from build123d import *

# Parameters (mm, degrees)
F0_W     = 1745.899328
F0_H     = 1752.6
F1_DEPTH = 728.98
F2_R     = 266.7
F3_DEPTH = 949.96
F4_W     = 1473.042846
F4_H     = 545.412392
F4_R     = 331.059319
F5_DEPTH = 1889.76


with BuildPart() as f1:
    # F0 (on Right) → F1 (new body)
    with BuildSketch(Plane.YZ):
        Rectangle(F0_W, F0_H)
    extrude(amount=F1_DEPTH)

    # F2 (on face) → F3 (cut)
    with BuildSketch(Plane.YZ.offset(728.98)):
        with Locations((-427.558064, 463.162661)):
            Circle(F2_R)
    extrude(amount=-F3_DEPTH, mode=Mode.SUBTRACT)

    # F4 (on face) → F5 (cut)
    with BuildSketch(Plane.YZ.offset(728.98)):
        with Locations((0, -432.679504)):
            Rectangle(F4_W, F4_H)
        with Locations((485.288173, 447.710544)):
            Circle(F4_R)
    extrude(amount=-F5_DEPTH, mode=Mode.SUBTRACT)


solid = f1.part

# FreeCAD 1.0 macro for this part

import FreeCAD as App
import Part
import Sketcher
Q = App.Units.Quantity

doc = App.newDocument("Part")
body = doc.addObject("PartDesign::Body", "Body")

sketch1 = body.newObject("Sketcher::SketchObject", "Sketch")
sketch1.AttachmentSupport = (doc.getObject("YZ_Plane"), [""])
sketch1.MapMode = "FlatFace"
sketch1.addGeometry([
    Part.LineSegment(App.Vector(-873, 876, 0), App.Vector(-873, -876, 0)),
    Part.LineSegment(App.Vector(-873, -876, 0), App.Vector(873, -876, 0)),
    Part.LineSegment(App.Vector(873, -876, 0), App.Vector(873, 876, 0)),
    Part.LineSegment(App.Vector(873, 876, 0), App.Vector(-873, 876, 0)),
], False)
sketch1.addConstraint([
    Sketcher.Constraint("Coincident", 0, 2, 1, 1),
    Sketcher.Constraint("Coincident", 1, 2, 2, 1),
    Sketcher.Constraint("Coincident", 2, 2, 3, 1),
    Sketcher.Constraint("Coincident", 3, 2, 0, 1),
    Sketcher.Constraint("Vertical", 0),
    Sketcher.Constraint("Horizontal", 1),
    Sketcher.Constraint("Vertical", 2),
    Sketcher.Constraint("Horizontal", 3),
    Sketcher.Constraint("Symmetric", 0, 2, 2, 2, -1, 1),
    Sketcher.Constraint("DistanceY", 0, 2, 0, 1, Q("69 in")),
    Sketcher.Constraint("DistanceX", 1, 1, 1, 2, 1745.899328),
])
pad1 = body.newObject("PartDesign::Pad", "Pad")
pad1.Profile = sketch1
pad1.Length = Q("28.7 in")

sketch2 = body.newObject("Sketcher::SketchObject", "Sketch001")
sketch2.AttachmentSupport = (doc.getObject("YZ_Plane"), [""])
sketch2.MapMode = "FlatFace"
sketch2.AttachmentOffset = App.Placement(App.Vector(0, 0, 28.7 * 25.4), App.Rotation())
sketch2.addGeometry(Part.Circle(App.Vector(-428, 463, 0), App.Vector(0, 0, 1), 267), False)
sketch2.addConstraint([
    Sketcher.Constraint("Diameter", 0, Q("21 in")),
    Sketcher.Constraint("DistanceY", -1, 1, 0, 3, 463.162661),
    Sketcher.Constraint("DistanceX", 0, 3, -1, 1, 427.558064),
])
pocket1 = body.newObject("PartDesign::Pocket", "Pocket")
pocket1.Profile = sketch2
pocket1.Length = Q("37.4 in")

sketch3 = body.newObject("Sketcher::SketchObject", "Sketch002")
sketch3.AttachmentSupport = (doc.getObject("YZ_Plane"), [""])
sketch3.MapMode = "FlatFace"
sketch3.AttachmentOffset = App.Placement(App.Vector(0, 0, 28.7 * 25.4), App.Rotation())
sketch3.addGeometry([
    Part.LineSegment(App.Vector(-737, -160, 0), App.Vector(-737, -705, 0)),
    Part.LineSegment(App.Vector(-737, -705, 0), App.Vector(737, -705, 0)),
    Part.LineSegment(App.Vector(737, -705, 0), App.Vector(737, -160, 0)),
    Part.LineSegment(App.Vector(737, -160, 0), App.Vector(-737, -160, 0)),
    Part.Circle(App.Vector(485, 448, 0), App.Vector(0, 0, 1), 331),
], False)
sketch3.addConstraint([
    Sketcher.Constraint("Coincident", 0, 2, 1, 1),
    Sketcher.Constraint("Coincident", 1, 2, 2, 1),
    Sketcher.Constraint("Coincident", 2, 2, 3, 1),
    Sketcher.Constraint("Coincident", 3, 2, 0, 1),
    Sketcher.Constraint("Vertical", 0),
    Sketcher.Constraint("Horizontal", 1),
    Sketcher.Constraint("Vertical", 2),
    Sketcher.Constraint("Horizontal", 3),
    Sketcher.Constraint("Diameter", 4, 662.118638),
    Sketcher.Constraint("DistanceY", 0, 2, -1, 1, 705.3857),
    Sketcher.Constraint("DistanceX", 1, 1, 1, 2, 1473.042846),
    Sketcher.Constraint("DistanceY", 0, 2, 0, 1, 545.412392),
    Sketcher.Constraint("DistanceX", 4, 3, 1, 2, 251.23325),
    Sketcher.Constraint("DistanceY", 2, 2, 4, 3, 607.683852),
    Sketcher.Constraint("DistanceX", -1, 1, 4, 3, 485.288173),
])
pocket2 = body.newObject("PartDesign::Pocket", "Pocket001")
pocket2.Profile = sketch3
pocket2.Length = Q("74.4 in")

doc.recompute()
